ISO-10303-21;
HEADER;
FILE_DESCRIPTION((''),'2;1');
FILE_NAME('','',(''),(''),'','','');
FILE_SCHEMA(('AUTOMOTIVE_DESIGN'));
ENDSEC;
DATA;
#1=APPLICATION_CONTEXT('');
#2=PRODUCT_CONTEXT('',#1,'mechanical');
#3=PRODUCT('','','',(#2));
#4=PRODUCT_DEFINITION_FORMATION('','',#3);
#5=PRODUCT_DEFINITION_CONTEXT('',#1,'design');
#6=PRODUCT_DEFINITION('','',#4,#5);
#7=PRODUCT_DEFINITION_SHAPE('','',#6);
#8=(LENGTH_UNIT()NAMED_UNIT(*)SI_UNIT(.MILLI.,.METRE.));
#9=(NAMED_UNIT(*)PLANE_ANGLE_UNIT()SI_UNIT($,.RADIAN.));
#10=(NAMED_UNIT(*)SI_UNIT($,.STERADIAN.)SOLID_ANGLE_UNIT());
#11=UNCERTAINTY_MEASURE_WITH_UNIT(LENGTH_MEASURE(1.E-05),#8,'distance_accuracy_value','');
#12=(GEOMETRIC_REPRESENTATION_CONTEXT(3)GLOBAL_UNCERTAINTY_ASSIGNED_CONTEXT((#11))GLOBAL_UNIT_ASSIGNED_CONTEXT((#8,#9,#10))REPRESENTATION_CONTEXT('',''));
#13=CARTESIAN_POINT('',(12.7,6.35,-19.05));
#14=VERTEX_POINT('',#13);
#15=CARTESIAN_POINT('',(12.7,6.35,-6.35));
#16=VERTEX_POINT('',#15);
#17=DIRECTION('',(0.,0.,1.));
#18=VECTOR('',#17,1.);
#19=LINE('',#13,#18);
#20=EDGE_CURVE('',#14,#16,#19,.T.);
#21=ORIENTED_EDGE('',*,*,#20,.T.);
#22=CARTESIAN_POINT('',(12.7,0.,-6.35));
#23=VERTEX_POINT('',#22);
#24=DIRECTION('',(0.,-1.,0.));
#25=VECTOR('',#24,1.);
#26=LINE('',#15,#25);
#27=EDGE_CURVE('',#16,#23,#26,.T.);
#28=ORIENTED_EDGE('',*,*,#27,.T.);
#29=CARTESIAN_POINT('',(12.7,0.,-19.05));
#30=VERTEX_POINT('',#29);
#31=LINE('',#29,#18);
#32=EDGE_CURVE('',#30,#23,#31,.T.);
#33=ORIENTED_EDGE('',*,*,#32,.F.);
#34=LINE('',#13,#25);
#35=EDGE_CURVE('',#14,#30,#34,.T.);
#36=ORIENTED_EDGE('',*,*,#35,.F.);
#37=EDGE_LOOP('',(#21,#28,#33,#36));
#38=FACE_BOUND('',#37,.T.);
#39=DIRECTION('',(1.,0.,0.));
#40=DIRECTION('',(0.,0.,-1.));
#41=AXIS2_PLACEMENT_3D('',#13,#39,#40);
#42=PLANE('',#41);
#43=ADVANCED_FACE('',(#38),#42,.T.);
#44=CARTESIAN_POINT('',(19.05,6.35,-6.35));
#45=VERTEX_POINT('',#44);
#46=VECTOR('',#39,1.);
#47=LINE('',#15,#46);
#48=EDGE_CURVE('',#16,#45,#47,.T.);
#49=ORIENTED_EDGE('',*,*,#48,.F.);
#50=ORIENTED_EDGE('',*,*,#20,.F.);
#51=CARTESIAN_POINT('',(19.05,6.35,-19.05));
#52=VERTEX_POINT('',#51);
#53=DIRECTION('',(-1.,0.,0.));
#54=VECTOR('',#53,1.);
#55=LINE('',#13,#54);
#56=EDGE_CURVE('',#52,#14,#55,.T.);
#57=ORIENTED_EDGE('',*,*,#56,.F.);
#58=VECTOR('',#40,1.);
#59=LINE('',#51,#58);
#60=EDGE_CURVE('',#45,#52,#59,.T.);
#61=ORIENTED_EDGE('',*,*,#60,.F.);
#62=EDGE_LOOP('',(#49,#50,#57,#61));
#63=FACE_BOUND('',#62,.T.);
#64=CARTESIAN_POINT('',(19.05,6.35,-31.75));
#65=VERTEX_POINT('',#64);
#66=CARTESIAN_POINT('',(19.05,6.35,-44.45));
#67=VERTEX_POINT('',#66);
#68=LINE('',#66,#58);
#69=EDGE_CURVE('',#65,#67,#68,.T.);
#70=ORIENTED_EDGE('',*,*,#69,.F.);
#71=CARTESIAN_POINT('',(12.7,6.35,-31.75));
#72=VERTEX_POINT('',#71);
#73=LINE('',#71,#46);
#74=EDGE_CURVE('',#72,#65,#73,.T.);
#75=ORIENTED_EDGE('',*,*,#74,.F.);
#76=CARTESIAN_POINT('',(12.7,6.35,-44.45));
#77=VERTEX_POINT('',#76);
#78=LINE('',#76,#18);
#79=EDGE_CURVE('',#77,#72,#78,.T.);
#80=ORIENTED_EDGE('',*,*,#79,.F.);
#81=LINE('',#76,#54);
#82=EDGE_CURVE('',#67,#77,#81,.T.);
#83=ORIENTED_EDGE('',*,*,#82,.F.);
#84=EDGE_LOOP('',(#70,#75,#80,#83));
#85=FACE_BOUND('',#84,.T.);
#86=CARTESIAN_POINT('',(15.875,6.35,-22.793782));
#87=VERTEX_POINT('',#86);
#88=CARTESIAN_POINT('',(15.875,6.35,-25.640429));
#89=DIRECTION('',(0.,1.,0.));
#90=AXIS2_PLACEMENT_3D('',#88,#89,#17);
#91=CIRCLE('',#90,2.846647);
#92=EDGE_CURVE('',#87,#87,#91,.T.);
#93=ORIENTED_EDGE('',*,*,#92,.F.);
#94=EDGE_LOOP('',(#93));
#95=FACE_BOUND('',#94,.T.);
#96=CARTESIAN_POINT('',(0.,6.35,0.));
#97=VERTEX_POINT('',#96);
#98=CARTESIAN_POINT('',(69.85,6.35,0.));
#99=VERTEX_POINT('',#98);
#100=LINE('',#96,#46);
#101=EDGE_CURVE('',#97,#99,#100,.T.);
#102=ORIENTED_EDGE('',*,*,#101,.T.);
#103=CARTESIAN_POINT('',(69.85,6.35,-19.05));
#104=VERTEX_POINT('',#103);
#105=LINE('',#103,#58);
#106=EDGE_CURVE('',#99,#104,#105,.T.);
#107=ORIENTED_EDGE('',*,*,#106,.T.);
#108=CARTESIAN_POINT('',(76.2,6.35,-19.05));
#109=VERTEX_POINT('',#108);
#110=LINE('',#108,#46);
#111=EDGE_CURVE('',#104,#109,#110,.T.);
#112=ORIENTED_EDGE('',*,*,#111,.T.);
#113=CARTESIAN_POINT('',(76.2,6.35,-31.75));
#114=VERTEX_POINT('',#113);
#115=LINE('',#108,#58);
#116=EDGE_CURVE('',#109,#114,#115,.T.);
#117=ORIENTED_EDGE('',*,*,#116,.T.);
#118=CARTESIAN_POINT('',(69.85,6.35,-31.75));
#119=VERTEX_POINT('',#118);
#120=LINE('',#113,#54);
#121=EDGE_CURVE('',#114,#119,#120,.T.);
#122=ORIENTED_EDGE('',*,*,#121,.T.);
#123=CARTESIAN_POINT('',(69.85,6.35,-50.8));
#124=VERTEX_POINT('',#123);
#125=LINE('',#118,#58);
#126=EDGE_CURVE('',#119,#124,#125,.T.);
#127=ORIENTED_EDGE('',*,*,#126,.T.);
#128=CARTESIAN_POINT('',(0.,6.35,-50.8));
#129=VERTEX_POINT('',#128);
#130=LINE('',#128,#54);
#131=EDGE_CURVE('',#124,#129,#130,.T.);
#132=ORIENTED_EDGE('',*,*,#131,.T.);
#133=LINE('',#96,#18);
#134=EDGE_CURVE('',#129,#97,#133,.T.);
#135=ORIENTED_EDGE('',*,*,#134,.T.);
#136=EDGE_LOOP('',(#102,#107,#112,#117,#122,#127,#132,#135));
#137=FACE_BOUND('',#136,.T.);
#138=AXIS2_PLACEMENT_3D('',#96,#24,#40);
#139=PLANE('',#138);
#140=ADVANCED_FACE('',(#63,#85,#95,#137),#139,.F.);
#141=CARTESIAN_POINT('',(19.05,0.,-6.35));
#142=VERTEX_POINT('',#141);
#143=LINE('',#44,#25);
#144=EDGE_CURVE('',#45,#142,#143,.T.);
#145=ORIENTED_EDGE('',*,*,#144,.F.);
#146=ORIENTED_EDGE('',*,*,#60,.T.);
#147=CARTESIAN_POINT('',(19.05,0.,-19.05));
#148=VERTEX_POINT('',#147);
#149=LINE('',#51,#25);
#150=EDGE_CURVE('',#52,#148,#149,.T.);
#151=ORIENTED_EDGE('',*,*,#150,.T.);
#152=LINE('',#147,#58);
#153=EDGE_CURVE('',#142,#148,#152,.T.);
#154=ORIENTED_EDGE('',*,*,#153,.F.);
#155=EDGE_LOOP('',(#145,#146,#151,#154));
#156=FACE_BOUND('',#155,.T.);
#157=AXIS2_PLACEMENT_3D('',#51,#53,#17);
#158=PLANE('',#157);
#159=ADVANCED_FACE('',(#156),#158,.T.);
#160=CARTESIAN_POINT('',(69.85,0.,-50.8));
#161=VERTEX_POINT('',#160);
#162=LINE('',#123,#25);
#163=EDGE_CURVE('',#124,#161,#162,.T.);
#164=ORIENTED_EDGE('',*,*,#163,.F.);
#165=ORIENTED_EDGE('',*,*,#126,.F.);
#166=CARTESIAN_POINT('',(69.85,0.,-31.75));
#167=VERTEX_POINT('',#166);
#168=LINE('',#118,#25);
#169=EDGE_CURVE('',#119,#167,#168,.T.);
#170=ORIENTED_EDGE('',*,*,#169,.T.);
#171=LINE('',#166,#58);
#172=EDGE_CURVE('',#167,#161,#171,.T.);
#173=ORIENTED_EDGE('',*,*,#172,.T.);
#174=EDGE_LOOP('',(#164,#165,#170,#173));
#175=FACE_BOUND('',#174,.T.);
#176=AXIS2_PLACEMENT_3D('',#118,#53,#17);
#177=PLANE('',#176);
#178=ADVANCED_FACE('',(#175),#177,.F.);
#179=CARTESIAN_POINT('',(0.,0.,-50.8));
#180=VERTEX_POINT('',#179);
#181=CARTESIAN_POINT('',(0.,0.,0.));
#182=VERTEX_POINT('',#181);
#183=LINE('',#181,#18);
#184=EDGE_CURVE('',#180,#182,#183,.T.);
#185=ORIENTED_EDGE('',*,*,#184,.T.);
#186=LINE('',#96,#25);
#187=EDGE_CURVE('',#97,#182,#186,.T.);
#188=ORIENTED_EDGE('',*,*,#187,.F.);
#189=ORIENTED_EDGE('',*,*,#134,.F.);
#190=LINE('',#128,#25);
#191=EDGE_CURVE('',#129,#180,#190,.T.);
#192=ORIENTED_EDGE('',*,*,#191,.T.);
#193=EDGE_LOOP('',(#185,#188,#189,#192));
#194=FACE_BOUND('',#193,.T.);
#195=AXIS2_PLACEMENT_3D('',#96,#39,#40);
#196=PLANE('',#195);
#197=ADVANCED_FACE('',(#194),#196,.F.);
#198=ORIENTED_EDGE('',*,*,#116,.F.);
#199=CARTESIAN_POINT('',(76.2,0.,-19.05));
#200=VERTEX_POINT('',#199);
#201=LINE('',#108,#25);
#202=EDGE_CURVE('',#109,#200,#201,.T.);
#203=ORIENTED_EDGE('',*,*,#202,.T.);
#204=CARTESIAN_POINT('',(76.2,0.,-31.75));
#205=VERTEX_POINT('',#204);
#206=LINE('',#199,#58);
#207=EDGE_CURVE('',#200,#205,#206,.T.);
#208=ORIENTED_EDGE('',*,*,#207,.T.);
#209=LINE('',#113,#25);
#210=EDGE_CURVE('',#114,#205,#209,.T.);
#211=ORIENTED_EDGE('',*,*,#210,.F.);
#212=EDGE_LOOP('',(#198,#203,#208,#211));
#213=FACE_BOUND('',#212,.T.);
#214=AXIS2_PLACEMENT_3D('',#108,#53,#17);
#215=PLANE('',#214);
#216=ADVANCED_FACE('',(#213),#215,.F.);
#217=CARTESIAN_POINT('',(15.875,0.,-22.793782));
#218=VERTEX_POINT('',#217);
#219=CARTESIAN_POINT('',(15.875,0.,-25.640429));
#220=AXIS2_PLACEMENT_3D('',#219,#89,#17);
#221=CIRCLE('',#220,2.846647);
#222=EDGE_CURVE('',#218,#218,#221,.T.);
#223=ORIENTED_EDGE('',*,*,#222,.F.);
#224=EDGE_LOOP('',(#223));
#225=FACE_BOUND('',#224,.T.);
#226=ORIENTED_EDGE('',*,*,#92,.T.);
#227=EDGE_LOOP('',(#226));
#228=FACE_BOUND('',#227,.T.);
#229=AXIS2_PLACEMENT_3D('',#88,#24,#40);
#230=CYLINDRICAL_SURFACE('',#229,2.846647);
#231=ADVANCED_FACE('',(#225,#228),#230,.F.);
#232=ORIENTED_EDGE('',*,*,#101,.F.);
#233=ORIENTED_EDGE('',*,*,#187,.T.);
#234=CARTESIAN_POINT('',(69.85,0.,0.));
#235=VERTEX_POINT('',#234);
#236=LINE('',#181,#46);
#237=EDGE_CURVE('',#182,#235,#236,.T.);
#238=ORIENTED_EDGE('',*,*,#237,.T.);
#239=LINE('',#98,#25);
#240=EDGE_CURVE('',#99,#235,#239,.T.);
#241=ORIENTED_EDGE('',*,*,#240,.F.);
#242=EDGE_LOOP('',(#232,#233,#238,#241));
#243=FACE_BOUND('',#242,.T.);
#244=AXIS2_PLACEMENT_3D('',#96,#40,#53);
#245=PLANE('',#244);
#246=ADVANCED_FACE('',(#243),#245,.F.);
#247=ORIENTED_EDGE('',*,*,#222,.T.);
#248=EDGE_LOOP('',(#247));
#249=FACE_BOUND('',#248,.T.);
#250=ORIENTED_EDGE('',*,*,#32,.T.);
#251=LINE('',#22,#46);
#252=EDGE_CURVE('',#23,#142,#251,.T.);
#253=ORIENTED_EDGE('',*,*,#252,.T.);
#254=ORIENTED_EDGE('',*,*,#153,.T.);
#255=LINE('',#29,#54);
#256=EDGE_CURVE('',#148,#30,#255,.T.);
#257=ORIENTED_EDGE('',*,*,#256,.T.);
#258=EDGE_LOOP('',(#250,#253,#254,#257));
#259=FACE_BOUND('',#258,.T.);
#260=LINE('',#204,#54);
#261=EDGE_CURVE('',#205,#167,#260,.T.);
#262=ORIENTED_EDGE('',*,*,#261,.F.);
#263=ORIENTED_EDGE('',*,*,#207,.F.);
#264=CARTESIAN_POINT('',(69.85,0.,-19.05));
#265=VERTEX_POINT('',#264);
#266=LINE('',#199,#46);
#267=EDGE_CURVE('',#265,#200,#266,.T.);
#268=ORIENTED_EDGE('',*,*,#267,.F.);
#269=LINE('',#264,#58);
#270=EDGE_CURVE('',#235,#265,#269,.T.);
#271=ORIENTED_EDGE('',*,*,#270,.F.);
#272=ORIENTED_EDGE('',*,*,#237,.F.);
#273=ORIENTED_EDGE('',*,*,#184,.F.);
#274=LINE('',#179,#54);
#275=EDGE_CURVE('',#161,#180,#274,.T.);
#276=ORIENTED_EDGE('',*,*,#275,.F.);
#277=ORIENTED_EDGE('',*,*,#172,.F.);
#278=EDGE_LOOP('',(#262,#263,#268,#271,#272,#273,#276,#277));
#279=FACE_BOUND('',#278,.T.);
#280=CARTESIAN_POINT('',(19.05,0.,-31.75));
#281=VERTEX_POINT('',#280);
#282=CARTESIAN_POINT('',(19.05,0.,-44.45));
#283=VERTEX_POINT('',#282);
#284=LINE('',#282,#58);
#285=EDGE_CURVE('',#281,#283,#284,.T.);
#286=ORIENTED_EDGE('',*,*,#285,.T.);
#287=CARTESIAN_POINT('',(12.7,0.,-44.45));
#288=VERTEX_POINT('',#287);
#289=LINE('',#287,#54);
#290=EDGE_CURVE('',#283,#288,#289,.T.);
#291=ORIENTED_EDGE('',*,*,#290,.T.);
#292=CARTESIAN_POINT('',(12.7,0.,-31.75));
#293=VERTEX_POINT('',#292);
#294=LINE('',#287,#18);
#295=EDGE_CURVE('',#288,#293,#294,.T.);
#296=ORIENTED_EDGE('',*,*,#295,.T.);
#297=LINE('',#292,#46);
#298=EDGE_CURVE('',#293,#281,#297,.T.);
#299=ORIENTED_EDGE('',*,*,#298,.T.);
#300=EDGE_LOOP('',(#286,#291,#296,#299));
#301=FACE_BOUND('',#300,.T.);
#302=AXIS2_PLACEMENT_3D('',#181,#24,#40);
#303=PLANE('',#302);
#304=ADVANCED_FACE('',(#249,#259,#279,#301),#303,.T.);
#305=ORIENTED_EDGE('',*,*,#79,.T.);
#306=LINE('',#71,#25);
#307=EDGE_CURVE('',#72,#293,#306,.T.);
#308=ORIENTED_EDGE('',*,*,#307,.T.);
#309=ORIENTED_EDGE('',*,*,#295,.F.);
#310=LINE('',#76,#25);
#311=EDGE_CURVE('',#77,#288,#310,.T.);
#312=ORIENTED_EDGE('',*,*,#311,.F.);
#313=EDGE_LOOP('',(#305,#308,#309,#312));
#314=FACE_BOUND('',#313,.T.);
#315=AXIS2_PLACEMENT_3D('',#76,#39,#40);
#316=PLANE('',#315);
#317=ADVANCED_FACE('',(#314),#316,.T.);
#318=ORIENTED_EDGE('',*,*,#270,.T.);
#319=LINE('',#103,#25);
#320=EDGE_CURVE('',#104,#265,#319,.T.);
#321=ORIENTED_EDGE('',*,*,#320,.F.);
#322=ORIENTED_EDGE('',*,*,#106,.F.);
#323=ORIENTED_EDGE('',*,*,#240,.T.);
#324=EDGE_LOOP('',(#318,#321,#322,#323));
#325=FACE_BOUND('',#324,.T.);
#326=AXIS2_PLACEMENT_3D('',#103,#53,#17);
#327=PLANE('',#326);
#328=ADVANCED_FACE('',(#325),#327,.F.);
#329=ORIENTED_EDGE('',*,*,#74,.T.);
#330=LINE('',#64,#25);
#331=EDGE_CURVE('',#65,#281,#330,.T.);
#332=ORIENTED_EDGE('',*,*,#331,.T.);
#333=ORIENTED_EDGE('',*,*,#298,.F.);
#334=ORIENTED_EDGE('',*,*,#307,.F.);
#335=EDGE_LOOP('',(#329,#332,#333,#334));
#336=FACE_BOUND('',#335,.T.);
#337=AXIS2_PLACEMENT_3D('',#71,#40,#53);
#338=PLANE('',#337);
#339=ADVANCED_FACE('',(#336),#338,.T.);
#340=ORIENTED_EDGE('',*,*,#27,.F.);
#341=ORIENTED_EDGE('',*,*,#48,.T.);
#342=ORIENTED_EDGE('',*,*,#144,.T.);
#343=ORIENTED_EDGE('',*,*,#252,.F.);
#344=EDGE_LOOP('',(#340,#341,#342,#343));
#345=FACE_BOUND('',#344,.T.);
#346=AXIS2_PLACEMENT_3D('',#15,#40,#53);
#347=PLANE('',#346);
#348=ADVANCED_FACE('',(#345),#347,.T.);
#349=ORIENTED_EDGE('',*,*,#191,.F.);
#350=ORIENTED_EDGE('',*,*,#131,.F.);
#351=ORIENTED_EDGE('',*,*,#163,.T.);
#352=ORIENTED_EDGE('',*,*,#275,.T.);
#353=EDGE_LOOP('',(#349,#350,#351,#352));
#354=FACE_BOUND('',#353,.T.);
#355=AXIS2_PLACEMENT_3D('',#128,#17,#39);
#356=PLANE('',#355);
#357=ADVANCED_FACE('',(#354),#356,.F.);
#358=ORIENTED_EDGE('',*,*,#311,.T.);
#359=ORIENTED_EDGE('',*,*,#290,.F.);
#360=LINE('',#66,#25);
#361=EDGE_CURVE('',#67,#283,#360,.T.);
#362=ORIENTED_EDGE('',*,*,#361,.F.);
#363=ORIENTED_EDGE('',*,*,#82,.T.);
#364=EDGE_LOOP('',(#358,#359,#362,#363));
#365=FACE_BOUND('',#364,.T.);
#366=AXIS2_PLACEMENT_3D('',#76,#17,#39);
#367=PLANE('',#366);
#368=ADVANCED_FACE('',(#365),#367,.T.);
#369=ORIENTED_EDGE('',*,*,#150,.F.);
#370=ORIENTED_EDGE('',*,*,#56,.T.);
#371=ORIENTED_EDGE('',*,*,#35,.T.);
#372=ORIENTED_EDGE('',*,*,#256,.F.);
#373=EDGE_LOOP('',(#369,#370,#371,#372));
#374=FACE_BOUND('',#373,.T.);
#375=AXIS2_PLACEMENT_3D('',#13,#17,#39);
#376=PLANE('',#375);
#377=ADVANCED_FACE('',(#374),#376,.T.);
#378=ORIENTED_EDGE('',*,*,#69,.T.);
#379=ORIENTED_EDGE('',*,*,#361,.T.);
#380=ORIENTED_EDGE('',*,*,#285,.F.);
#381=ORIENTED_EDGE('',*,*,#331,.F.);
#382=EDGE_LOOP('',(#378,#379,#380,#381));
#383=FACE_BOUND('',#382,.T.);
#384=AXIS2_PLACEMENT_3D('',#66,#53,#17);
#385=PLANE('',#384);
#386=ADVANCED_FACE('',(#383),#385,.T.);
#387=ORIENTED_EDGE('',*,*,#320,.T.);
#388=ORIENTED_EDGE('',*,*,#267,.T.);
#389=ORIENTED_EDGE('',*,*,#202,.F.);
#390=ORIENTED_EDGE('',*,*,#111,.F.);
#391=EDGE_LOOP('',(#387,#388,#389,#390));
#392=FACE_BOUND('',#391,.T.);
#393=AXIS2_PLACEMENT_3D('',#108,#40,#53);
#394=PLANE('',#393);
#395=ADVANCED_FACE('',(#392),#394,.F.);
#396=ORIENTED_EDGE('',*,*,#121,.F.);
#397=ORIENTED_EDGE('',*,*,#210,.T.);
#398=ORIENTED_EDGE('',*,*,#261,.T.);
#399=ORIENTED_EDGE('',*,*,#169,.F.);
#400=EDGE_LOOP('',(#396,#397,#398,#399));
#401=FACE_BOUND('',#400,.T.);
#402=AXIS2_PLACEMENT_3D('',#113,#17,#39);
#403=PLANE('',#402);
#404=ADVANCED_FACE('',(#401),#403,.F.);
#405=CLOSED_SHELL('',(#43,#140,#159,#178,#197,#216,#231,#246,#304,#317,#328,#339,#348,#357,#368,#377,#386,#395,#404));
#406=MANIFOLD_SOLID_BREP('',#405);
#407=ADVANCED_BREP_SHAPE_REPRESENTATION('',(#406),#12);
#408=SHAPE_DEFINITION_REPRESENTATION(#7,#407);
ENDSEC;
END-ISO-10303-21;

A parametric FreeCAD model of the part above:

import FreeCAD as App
import Part
import Sketcher

V = App.Vector
Q = App.Units.Quantity

doc = App.newDocument("Part")
body = doc.addObject("PartDesign::Body", "Body")

sketch1 = body.newObject("Sketcher::SketchObject", "Sketch")
sketch1.AttachmentSupport = (doc.getObject("XZ_Plane"), [""])
sketch1.MapMode = "FlatFace"
sketch1.addGeometry(Part.LineSegment(V(0, 0, 0), V(69.85, 0, 0)), False)
sketch1.addGeometry(Part.LineSegment(V(69.85, 0, 0), V(69.85, -19.05, 0)), False)
sketch1.addGeometry(Part.LineSegment(V(69.85, -19.05, 0), V(76.2, -19.05, 0)), False)
sketch1.addGeometry(Part.LineSegment(V(76.2, -19.05, 0), V(76.2, -31.75, 0)), False)
sketch1.addGeometry(Part.LineSegment(V(76.2, -31.75, 0), V(69.85, -31.75, 0)), False)
sketch1.addGeometry(Part.LineSegment(V(69.85, -31.75, 0), V(69.85, -50.8, 0)), False)
sketch1.addGeometry(Part.LineSegment(V(69.85, -50.8, 0), V(0, -50.8, 0)), False)
sketch1.addGeometry(Part.LineSegment(V(0, -50.8, 0), V(0, 0, 0)), False)
sketch1.addGeometry(Part.LineSegment(V(19.05, -6.35, 0), V(12.7, -6.35, 0)), False)
sketch1.addGeometry(Part.LineSegment(V(12.7, -6.35, 0), V(12.7, -19.05, 0)), False)
sketch1.addGeometry(Part.LineSegment(V(12.7, -19.05, 0), V(19.05, -19.05, 0)), False)
sketch1.addGeometry(Part.LineSegment(V(19.05, -19.05, 0), V(19.05, -6.35, 0)), False)
sketch1.addGeometry(Part.Circle(V(15.875, -25.640429, 0), V(0, 0, 1), 2.846647), False)
sketch1.addGeometry(Part.LineSegment(V(19.05, -31.75, 0), V(12.7, -31.75, 0)), False)
sketch1.addGeometry(Part.LineSegment(V(12.7, -31.75, 0), V(12.7, -44.45, 0)), False)
sketch1.addGeometry(Part.LineSegment(V(12.7, -44.45, 0), V(19.05, -44.45, 0)), False)
sketch1.addGeometry(Part.LineSegment(V(19.05, -44.45, 0), V(19.05, -31.75, 0)), False)
sketch1.addConstraint(Sketcher.Constraint("Coincident", 0, 2, 1, 1))
sketch1.addConstraint(Sketcher.Constraint("Coincident", 1, 2, 2, 1))
sketch1.addConstraint(Sketcher.Constraint("Coincident", 2, 2, 3, 1))
sketch1.addConstraint(Sketcher.Constraint("Coincident", 3, 2, 4, 1))
sketch1.addConstraint(Sketcher.Constraint("Coincident", 4, 2, 5, 1))
sketch1.addConstraint(Sketcher.Constraint("Coincident", 5, 2, 6, 1))
sketch1.addConstraint(Sketcher.Constraint("Coincident", 6, 2, 7, 1))
sketch1.addConstraint(Sketcher.Constraint("Coincident", 7, 2, 0, 1))
sketch1.addConstraint(Sketcher.Constraint("Coincident", 8, 2, 9, 1))
sketch1.addConstraint(Sketcher.Constraint("Coincident", 9, 2, 10, 1))
sketch1.addConstraint(Sketcher.Constraint("Coincident", 10, 2, 11, 1))
sketch1.addConstraint(Sketcher.Constraint("Coincident", 11, 2, 8, 1))
sketch1.addConstraint(Sketcher.Constraint("Coincident", 13, 2, 14, 1))
sketch1.addConstraint(Sketcher.Constraint("Coincident", 14, 2, 15, 1))
sketch1.addConstraint(Sketcher.Constraint("Coincident", 15, 2, 16, 1))
sketch1.addConstraint(Sketcher.Constraint("Coincident", 16, 2, 13, 1))
sketch1.addConstraint(Sketcher.Constraint("Horizontal", 0))
sketch1.addConstraint(Sketcher.Constraint("Vertical", 1))
sketch1.addConstraint(Sketcher.Constraint("Horizontal", 2))
sketch1.addConstraint(Sketcher.Constraint("Vertical", 3))
sketch1.addConstraint(Sketcher.Constraint("Horizontal", 4))
sketch1.addConstraint(Sketcher.Constraint("Vertical", 5))
sketch1.addConstraint(Sketcher.Constraint("Horizontal", 6))
sketch1.addConstraint(Sketcher.Constraint("Vertical", 7))
sketch1.addConstraint(Sketcher.Constraint("Horizontal", 8))
sketch1.addConstraint(Sketcher.Constraint("Vertical", 9))
sketch1.addConstraint(Sketcher.Constraint("Horizontal", 10))
sketch1.addConstraint(Sketcher.Constraint("Vertical", 11))
sketch1.addConstraint(Sketcher.Constraint("Horizontal", 13))
sketch1.addConstraint(Sketcher.Constraint("Vertical", 14))
sketch1.addConstraint(Sketcher.Constraint("Horizontal", 15))
sketch1.addConstraint(Sketcher.Constraint("Vertical", 16))
sketch1.addConstraint(Sketcher.Constraint("Coincident", 7, 2, -1, 1))
sketch1.addConstraint(Sketcher.Constraint("Horizontal", 2, 2, 9, 2))
sketch1.addConstraint(Sketcher.Constraint("Horizontal", 4, 2, 13, 2))
sketch1.addConstraint(Sketcher.Constraint("Vertical", 1, 2, 4, 2))
sketch1.addConstraint(Sketcher.Constraint("Vertical", 9, 2, 13, 2))
sketch1.addConstraint(Sketcher.Constraint("Vertical", 11, 2, 15, 2))
sketch1.addConstraint(Sketcher.Constraint("Equal", 4, 8))
sketch1.addConstraint(Sketcher.Constraint("Equal", 1, 5))
sketch1.addConstraint(Sketcher.Constraint("Equal", 3, 9))
sketch1.addConstraint(Sketcher.Constraint("Equal", 11, 14))
sketch1.addConstraint(Sketcher.Constraint("DistanceY", 7, 1, 7, 2, Q("2 in")))
sketch1.addConstraint(Sketcher.Constraint("DistanceY", 3, 2, 3, 1, Q("0.5 in")))
sketch1.addConstraint(Sketcher.Constraint("DistanceX", -1, 1, 2, 2, Q("3 in")))
sketch1.addConstraint(Sketcher.Constraint("DistanceX", 0, 1, 0, 2, Q("2.75 in")))
sketch1.addConstraint(Sketcher.Constraint("DistanceX", -1, 1, 8, 2, Q("0.5 in")))
sketch1.addConstraint(Sketcher.Constraint("DistanceX", -1, 1, 12, 3, Q("0.625 in")))
sketch1.addConstraint(Sketcher.Constraint("Diameter", 12, Q("5.693293 mm")))
sketch1.addConstraint(Sketcher.Constraint("DistanceY", 12, 3, -1, 1, Q("25.640429 mm")))
pad1 = body.newObject("PartDesign::Pad", "Pad")
pad1.Profile = sketch1
pad1.Length = Q("0.25 in")
pad1.Reversed = True

doc.recompute()
